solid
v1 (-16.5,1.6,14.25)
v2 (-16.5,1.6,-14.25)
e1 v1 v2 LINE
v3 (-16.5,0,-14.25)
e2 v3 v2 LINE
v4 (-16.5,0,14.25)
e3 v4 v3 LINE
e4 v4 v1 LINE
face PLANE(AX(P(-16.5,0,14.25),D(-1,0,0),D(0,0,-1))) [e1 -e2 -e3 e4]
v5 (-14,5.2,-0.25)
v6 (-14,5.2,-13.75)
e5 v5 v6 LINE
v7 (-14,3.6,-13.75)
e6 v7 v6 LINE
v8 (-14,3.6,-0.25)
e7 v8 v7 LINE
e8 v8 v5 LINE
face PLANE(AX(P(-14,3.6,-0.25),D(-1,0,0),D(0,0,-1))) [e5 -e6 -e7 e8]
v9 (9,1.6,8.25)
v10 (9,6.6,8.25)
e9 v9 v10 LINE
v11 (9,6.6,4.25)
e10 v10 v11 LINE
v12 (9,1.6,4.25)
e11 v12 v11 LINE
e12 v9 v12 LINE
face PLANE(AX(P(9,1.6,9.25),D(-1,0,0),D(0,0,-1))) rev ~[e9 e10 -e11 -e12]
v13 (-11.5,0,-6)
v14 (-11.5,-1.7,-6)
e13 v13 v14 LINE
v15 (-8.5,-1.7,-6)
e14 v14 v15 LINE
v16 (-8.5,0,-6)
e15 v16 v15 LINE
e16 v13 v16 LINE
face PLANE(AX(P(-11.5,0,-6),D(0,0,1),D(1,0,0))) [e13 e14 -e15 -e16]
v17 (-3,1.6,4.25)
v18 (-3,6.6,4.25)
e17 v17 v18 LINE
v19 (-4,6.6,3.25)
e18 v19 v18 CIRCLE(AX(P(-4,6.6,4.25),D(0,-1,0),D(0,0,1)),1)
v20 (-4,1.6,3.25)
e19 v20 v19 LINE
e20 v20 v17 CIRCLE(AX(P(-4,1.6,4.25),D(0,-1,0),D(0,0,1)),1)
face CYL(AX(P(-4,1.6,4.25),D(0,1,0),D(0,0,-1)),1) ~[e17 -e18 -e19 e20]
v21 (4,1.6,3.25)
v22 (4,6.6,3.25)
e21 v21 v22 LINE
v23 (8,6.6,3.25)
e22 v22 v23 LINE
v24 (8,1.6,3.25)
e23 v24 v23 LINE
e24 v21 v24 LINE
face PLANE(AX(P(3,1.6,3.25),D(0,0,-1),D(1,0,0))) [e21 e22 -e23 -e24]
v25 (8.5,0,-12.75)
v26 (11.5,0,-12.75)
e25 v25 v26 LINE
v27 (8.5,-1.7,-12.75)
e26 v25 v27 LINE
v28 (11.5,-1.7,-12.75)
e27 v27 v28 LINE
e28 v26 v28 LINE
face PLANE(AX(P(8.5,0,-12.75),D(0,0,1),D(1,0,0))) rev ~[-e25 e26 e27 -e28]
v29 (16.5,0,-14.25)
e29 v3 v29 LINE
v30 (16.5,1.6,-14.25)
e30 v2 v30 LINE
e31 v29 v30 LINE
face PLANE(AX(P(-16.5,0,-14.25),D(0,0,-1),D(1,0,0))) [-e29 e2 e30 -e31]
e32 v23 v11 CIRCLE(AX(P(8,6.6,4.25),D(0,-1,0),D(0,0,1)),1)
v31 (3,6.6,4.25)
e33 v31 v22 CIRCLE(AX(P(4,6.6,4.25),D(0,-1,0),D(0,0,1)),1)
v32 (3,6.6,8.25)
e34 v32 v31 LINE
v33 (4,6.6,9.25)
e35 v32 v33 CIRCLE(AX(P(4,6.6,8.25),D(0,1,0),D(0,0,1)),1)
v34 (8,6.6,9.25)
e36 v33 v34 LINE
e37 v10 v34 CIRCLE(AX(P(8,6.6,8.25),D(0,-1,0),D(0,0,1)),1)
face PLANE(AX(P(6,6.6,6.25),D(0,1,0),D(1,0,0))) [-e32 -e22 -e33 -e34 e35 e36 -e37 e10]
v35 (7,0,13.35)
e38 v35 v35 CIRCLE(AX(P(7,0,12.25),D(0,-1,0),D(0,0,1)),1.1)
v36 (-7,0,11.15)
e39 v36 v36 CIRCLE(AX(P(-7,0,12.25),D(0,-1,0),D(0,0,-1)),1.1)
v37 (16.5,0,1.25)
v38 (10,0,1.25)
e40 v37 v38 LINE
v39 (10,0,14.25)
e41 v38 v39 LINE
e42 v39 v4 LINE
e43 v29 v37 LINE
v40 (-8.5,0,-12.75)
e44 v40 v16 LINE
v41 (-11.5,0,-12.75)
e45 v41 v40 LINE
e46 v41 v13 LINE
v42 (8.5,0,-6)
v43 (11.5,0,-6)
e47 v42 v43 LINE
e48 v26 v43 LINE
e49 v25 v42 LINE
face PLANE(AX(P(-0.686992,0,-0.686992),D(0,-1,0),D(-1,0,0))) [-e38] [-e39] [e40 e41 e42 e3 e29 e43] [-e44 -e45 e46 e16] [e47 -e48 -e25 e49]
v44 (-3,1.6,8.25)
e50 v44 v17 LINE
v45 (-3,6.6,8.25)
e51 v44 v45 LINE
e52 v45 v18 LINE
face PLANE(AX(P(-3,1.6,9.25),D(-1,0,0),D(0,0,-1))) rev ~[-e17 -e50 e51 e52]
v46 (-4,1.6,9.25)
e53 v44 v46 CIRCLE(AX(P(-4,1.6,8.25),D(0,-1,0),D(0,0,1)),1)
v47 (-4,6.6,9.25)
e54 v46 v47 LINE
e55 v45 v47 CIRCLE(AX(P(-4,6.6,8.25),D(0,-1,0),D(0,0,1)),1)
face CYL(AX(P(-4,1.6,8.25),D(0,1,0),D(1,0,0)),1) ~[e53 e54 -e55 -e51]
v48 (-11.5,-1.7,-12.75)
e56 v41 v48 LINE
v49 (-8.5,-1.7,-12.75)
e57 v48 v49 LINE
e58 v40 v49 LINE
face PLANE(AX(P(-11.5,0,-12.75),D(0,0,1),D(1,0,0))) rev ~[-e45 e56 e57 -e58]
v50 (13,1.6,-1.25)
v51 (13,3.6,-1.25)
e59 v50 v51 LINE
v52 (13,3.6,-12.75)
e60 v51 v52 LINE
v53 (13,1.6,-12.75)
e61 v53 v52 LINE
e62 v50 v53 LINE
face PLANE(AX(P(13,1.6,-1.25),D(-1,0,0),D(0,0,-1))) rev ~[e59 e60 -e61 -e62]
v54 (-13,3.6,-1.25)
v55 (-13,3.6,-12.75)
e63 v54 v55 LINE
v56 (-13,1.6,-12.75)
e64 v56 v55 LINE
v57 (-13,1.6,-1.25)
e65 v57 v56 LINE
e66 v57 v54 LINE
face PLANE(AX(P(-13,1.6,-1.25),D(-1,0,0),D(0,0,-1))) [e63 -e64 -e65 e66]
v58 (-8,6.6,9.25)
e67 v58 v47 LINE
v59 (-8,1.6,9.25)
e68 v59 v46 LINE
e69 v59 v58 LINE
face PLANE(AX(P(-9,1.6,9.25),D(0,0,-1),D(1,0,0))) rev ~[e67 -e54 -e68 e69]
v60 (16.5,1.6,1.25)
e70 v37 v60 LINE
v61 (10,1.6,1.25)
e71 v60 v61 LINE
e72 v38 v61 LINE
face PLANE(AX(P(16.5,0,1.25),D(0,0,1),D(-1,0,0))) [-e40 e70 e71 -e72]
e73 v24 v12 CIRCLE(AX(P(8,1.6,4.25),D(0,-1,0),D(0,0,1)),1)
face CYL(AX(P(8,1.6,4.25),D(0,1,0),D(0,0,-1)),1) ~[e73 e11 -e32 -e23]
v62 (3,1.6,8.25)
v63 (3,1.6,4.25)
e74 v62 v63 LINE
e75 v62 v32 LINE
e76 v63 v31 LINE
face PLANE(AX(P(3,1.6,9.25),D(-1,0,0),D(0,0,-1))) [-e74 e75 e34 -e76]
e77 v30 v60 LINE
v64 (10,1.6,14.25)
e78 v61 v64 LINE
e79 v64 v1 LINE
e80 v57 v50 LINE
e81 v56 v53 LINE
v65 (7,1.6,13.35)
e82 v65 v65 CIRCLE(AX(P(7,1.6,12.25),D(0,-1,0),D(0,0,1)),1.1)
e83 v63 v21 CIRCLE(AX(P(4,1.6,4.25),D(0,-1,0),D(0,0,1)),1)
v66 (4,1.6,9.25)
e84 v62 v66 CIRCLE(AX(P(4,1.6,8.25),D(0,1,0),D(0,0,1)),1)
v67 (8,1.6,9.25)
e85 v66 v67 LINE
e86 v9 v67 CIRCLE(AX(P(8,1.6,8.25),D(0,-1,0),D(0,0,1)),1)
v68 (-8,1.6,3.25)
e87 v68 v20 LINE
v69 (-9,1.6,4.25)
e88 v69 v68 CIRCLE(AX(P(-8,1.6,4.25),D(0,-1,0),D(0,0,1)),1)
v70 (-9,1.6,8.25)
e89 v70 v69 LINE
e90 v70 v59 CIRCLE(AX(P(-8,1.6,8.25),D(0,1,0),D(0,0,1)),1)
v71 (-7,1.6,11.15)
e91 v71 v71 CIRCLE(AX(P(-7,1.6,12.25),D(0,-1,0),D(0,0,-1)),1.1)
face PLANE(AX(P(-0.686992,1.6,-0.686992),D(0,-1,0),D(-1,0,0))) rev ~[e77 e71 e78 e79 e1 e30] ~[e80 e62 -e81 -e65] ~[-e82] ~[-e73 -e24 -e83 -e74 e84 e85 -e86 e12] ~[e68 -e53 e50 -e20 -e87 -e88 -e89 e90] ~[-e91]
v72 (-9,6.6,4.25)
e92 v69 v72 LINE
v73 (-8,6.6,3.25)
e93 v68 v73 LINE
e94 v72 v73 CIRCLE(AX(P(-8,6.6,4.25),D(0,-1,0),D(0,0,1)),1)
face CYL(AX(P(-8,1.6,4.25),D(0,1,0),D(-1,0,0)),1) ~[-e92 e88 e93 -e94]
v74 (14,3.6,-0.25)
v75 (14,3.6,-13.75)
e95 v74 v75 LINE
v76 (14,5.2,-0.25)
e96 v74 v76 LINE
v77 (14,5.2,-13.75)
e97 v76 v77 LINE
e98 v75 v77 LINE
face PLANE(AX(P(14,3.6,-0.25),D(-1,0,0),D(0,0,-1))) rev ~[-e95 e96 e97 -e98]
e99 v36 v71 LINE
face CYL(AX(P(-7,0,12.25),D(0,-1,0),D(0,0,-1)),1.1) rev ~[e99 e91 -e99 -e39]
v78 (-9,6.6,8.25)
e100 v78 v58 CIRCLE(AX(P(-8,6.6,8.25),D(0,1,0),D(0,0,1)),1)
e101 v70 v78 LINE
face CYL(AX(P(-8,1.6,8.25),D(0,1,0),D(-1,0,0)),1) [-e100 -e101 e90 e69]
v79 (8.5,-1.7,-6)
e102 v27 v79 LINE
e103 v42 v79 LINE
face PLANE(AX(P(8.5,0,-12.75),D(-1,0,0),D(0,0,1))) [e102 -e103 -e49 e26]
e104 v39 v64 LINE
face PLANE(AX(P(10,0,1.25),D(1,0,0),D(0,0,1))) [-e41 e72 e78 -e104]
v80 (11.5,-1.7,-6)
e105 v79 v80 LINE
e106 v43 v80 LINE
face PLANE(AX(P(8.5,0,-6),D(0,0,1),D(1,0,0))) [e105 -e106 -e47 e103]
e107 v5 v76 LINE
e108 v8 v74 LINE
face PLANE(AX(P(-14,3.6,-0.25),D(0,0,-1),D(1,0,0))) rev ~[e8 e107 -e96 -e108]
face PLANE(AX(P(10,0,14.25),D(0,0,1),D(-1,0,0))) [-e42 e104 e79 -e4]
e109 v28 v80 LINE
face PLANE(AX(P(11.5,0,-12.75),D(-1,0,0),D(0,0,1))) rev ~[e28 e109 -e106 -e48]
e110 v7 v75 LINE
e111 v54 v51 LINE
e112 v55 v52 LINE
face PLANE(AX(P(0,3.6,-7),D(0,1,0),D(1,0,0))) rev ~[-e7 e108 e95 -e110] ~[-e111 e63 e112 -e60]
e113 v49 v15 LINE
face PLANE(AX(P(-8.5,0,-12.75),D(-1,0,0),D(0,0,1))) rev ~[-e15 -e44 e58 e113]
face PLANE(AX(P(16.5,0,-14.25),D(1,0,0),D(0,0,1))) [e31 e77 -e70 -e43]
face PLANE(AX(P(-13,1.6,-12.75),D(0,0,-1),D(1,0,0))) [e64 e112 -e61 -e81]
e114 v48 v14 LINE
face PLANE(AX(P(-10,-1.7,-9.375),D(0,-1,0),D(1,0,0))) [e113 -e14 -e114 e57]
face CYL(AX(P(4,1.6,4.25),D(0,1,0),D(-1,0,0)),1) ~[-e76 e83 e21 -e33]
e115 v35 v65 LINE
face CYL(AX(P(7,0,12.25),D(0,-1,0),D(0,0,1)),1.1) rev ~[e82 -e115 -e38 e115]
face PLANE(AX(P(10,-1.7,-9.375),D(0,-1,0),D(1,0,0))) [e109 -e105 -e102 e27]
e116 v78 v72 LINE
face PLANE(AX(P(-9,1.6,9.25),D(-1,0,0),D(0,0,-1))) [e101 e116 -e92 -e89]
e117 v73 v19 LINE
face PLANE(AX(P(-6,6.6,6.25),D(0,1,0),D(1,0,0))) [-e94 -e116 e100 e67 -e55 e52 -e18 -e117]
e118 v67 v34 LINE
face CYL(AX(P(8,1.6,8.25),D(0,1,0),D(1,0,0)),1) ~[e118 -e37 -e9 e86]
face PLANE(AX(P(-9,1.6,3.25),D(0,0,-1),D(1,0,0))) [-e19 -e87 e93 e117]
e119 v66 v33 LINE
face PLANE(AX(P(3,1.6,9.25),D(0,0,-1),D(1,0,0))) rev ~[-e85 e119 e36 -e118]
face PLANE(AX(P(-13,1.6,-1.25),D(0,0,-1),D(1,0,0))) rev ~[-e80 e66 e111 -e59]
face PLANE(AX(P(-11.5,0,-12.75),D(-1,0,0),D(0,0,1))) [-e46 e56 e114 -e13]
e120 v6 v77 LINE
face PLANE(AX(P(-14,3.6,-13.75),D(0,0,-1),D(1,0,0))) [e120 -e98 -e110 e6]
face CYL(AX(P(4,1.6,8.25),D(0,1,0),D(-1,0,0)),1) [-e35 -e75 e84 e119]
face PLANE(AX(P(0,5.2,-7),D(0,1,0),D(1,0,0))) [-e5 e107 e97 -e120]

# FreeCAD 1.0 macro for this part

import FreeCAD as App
import Part
import Sketcher
from FreeCAD import Vector


def edges_at(feature, points):
    """Names of the edges that pass closest to the given points."""
    edges = feature.Shape.Edges
    near = lambda p: min(range(len(edges)), key=lambda i: edges[i].distToShape(Part.Vertex(*p))[0])
    return sorted({f"Edge{near(p) + 1}" for p in points})


def add_polygon(sketch, points):
    """Adds a closed chain of lines whose ends are joined by coincident constraints."""
    first, n = sketch.GeometryCount, len(points)
    for a, b in zip(points, points[1:] + points[:1]):
        sketch.addGeometry(Part.LineSegment(App.Vector(*a, 0), App.Vector(*b, 0)), False)
    for i in range(n):
        sketch.addConstraint(Sketcher.Constraint("Coincident", first + i, 2, first + (i + 1) % n, 1))

doc = App.newDocument("Part")
body = doc.addObject("PartDesign::Body", "Body")

sketch1 = body.newObject("Sketcher::SketchObject", "Sketch")
sketch1.AttachmentSupport = (doc.getObject("XZ_Plane"), [""])
sketch1.MapMode = "FlatFace"
add_polygon(sketch1, [(10, 1.25), (16.5, 1.25), (16.5, -14.25), (-16.5, -14.25), (-16.5, 14.25), (10, 14.25)])
sketch1.addConstraint(Sketcher.Constraint("Horizontal", 0))
sketch1.addConstraint(Sketcher.Constraint("Vertical", 1))
sketch1.addConstraint(Sketcher.Constraint("Horizontal", 2))
sketch1.addConstraint(Sketcher.Constraint("Vertical", 3))
sketch1.addConstraint(Sketcher.Constraint("Horizontal", 4))
sketch1.addConstraint(Sketcher.Constraint("Vertical", 5))
sketch1.addConstraint(Sketcher.Constraint("Symmetric", 1, 2, 3, 2, -1, 1))
sketch1.addConstraint(Sketcher.Constraint("DistanceX", 2, 2, 2, 1, 33.0))
sketch1.addConstraint(Sketcher.Constraint("DistanceY", 5, 2, 5, 1, 13.0))
sketch1.addConstraint(Sketcher.Constraint("DistanceX", 0, 1, 0, 2, 6.5))
sketch1.addConstraint(Sketcher.Constraint("DistanceY", 1, 2, 1, 1, 15.5))
pad1 = body.newObject("PartDesign::Pad", "Pad")
pad1.Profile = sketch1
pad1.Length = 1.6
pad1.Reversed = True

sketch2 = body.newObject("Sketcher::SketchObject", "Sketch001")
sketch2.AttachmentSupport = (doc.getObject("XZ_Plane"), [""])
sketch2.MapMode = "FlatFace"
add_polygon(sketch2, [(-11.5, -6), (-11.5, -12.75), (-8.5, -12.75), (-8.5, -6)])
add_polygon(sketch2, [(8.5, -6), (8.5, -12.75), (11.5, -12.75), (11.5, -6)])
sketch2.addConstraint(Sketcher.Constraint("Vertical", 0))
sketch2.addConstraint(Sketcher.Constraint("Horizontal", 1))
sketch2.addConstraint(Sketcher.Constraint("Vertical", 2))
sketch2.addConstraint(Sketcher.Constraint("Horizontal", 3))
sketch2.addConstraint(Sketcher.Constraint("Vertical", 4))
sketch2.addConstraint(Sketcher.Constraint("Horizontal", 5))
sketch2.addConstraint(Sketcher.Constraint("Vertical", 6))
sketch2.addConstraint(Sketcher.Constraint("Horizontal", 7))
sketch2.addConstraint(Sketcher.Constraint("Symmetric", 1, 2, 4, 2, -2))
sketch2.addConstraint(Sketcher.Constraint("Symmetric", 3, 2, 6, 2, -2))
sketch2.addConstraint(Sketcher.Constraint("DistanceX", 1, 1, 1, 2, 3.0))
sketch2.addConstraint(Sketcher.Constraint("DistanceY", 2, 2, -1, 1, 6.0))
sketch2.addConstraint(Sketcher.Constraint("DistanceX", 1, 2, 4, 2, 17.0))
sketch2.addConstraint(Sketcher.Constraint("DistanceY", 0, 2, 0, 1, 6.75))
pad2 = body.newObject("PartDesign::Pad", "Pad001")
pad2.Profile = sketch2
pad2.Length = 1.7

sketch3 = body.newObject("Sketcher::SketchObject", "Sketch002")
sketch3.AttachmentSupport = (doc.getObject("XZ_Plane"), [""])
sketch3.MapMode = "FlatFace"
sketch3.addGeometry(Part.Circle(Vector(-7, 12.25, 0), Vector(0, 0, 1), 1.1), False)
sketch3.addGeometry(Part.Circle(Vector(7, 12.25, 0), Vector(0, 0, 1), 1.1), False)
sketch3.addConstraint(Sketcher.Constraint("Equal", 0, 1))
sketch3.addConstraint(Sketcher.Constraint("Symmetric", 0, 3, 1, 3, -2))
sketch3.addConstraint(Sketcher.Constraint("Diameter", 0, 2.2))
sketch3.addConstraint(Sketcher.Constraint("DistanceX", 0, 3, -1, 1, 7.0))
sketch3.addConstraint(Sketcher.Constraint("DistanceY", -1, 1, 0, 3, 12.25))
pocket1 = body.newObject("PartDesign::Pocket", "Pocket")
pocket1.Profile = sketch3
pocket1.Type = "ThroughAll"

sketch4 = body.newObject("Sketcher::SketchObject", "Sketch003")
sketch4.AttachmentSupport = (doc.getObject("XZ_Plane"), [""])
sketch4.MapMode = "FlatFace"
sketch4.AttachmentOffset = App.Placement(Vector(0, 0, -1.6), App.Rotation())
add_polygon(sketch4, [(3, 3.25), (3, 9.25), (9, 9.25), (9, 3.25)])
add_polygon(sketch4, [(-9, 3.25), (-9, 9.25), (-3, 9.25), (-3, 3.25)])
sketch4.addConstraint(Sketcher.Constraint("Vertical", 0))
sketch4.addConstraint(Sketcher.Constraint("Horizontal", 1))
sketch4.addConstraint(Sketcher.Constraint("Vertical", 2))
sketch4.addConstraint(Sketcher.Constraint("Horizontal", 3))
sketch4.addConstraint(Sketcher.Constraint("Vertical", 4))
sketch4.addConstraint(Sketcher.Constraint("Horizontal", 5))
sketch4.addConstraint(Sketcher.Constraint("Vertical", 6))
sketch4.addConstraint(Sketcher.Constraint("Horizontal", 7))
sketch4.addConstraint(Sketcher.Constraint("Symmetric", 1, 2, 4, 2, -2))
sketch4.addConstraint(Sketcher.Constraint("Symmetric", 3, 2, 6, 2, -2))
sketch4.addConstraint(Sketcher.Constraint("Equal", 7, 0))
sketch4.addConstraint(Sketcher.Constraint("DistanceX", 1, 1, 1, 2, 6.0))
sketch4.addConstraint(Sketcher.Constraint("DistanceX", -1, 1, 0, 2, 3.0))
sketch4.addConstraint(Sketcher.Constraint("DistanceY", -1, 1, 0, 2, 9.25))
pad3 = body.newObject("PartDesign::Pad", "Pad002")
pad3.Profile = sketch4
pad3.Length = 5
pad3.Reversed = True
doc.recompute()

fillet = body.newObject("PartDesign::Fillet", "Fillet")
fillet.Base = (pad3, edges_at(pad3, [
    (3, 4.1, 3.25),
    (3, 4.1, 9.25),
    (9, 4.1, 9.25),
    (9, 4.1, 3.25),
    (-3, 4.1, 9.25),
    (-3, 4.1, 3.25),
    (-9, 4.1, 3.25),
    (-9, 4.1, 9.25),
]))
fillet.Radius = 1
body2 = doc.addObject("PartDesign::Body", "Body001")

sketch5 = body2.newObject("Sketcher::SketchObject", "Sketch004")
sketch5.AttachmentSupport = (doc.getObject("XZ_Plane001"), [""])
sketch5.MapMode = "FlatFace"
sketch5.AttachmentOffset = App.Placement(Vector(0, 0, -3.6), App.Rotation())
add_polygon(sketch5, [(-14, -13.75), (-14, -0.25), (14, -0.25), (14, -13.75)])
sketch5.addConstraint(Sketcher.Constraint("Vertical", 0))
sketch5.addConstraint(Sketcher.Constraint("Horizontal", 1))
sketch5.addConstraint(Sketcher.Constraint("Vertical", 2))
sketch5.addConstraint(Sketcher.Constraint("Horizontal", 3))
sketch5.addConstraint(Sketcher.Constraint("DistanceX", 1, 1, 1, 2, 28.0))
sketch5.addConstraint(Sketcher.Constraint("DistanceY", 0, 1, 0, 2, 13.5))
sketch5.addConstraint(Sketcher.Constraint("DistanceX", 0, 2, -1, 1, 14.0))
sketch5.addConstraint(Sketcher.Constraint("DistanceY", 0, 2, -1, 1, 0.25))
pad4 = body2.newObject("PartDesign::Pad", "Pad003")
pad4.Profile = sketch5
pad4.Length = 1.6
pad4.Reversed = True
body.AllowCompound = True
doc.recompute()

boolean = body.newObject("PartDesign::Boolean", "Boolean")
boolean.Type = "Fuse"
boolean.addObjects([body2])

sketch6 = body.newObject("Sketcher::SketchObject", "Sketch005")
sketch6.AttachmentSupport = (doc.getObject("XZ_Plane"), [""])
sketch6.MapMode = "FlatFace"
sketch6.AttachmentOffset = App.Placement(Vector(0, 0, -1.6), App.Rotation())
add_polygon(sketch6, [(-13, -12.75), (-13, -1.25), (13, -1.25), (13, -12.75)])
sketch6.addConstraint(Sketcher.Constraint("Vertical", 0))
sketch6.addConstraint(Sketcher.Constraint("Horizontal", 1))
sketch6.addConstraint(Sketcher.Constraint("Vertical", 2))
sketch6.addConstraint(Sketcher.Constraint("Horizontal", 3))
sketch6.addConstraint(Sketcher.Constraint("DistanceX", 1, 1, 1, 2, 26.0))
sketch6.addConstraint(Sketcher.Constraint("DistanceY", 0, 1, 0, 2, 11.5))
sketch6.addConstraint(Sketcher.Constraint("DistanceX", 0, 2, -1, 1, 13.0))
sketch6.addConstraint(Sketcher.Constraint("DistanceY", 0, 2, -1, 1, 1.25))
pad5 = body.newObject("PartDesign::Pad", "Pad004")
pad5.Profile = sketch6
pad5.Length = 2
pad5.Reversed = True

doc.recompute()
